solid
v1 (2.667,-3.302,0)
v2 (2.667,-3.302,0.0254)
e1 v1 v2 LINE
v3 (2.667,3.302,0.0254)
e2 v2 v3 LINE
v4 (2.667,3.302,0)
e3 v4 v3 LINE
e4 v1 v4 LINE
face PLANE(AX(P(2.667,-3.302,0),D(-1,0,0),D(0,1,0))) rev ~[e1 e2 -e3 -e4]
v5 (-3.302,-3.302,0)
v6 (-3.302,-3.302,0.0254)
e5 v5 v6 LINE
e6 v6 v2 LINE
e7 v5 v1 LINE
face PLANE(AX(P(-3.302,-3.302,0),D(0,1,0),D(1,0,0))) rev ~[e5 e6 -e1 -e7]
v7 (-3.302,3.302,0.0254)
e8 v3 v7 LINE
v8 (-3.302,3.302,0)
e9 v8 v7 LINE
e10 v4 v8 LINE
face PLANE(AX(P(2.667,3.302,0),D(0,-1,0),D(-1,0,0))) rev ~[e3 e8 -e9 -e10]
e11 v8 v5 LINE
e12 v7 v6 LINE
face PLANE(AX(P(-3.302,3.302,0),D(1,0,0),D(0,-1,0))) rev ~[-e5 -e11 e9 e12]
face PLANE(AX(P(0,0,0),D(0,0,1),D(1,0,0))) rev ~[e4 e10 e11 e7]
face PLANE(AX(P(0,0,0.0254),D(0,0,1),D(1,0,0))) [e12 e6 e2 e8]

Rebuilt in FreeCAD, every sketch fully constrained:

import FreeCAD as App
import Part
import Sketcher

V = App.Vector
Q = App.Units.Quantity

doc = App.newDocument("Part")
body = doc.addObject("PartDesign::Body", "Body")

sketch1 = doc.addObject("Sketcher::SketchObject", "Sketch")
body.addObject(sketch1)
sketch1.AttachmentSupport = (doc.XY_Plane, [""])
sketch1.MapMode = "FlatFace"
sketch1.addGeometry([
    Part.LineSegment(V(-3.302, 3.302, 0), V(-3.302, -3.302, 0)),
    Part.LineSegment(V(-3.302, -3.302, 0), V(2.667, -3.302, 0)),
    Part.LineSegment(V(2.667, -3.302, 0), V(2.667, 3.302, 0)),
    Part.LineSegment(V(2.667, 3.302, 0), V(-3.302, 3.302, 0)),
], False)
sketch1.addConstraint([
    Sketcher.Constraint("Coincident", 0, 2, 1, 1),
    Sketcher.Constraint("Coincident", 1, 2, 2, 1),
    Sketcher.Constraint("Coincident", 2, 2, 3, 1),
    Sketcher.Constraint("Coincident", 3, 2, 0, 1),
    Sketcher.Constraint("Vertical", 0),
    Sketcher.Constraint("Horizontal", 1),
    Sketcher.Constraint("Vertical", 2),
    Sketcher.Constraint("Horizontal", 3),
    Sketcher.Constraint("DistanceY", 0, 2, 0, 1, Q("0.26 in")),
    Sketcher.Constraint("DistanceX", 1, 1, 1, 2, Q("0.235 in")),
    Sketcher.Constraint("DistanceX", 0, 2, -1, 1, Q("0.13 in")),
    Sketcher.Constraint("DistanceY", 0, 2, -1, 1, Q("0.13 in")),
])
pad1 = doc.addObject("PartDesign::Pad", "Pad")
body.addObject(pad1)
pad1.Profile = sketch1
pad1.Length = Q("0.001 in")

doc.recompute()
